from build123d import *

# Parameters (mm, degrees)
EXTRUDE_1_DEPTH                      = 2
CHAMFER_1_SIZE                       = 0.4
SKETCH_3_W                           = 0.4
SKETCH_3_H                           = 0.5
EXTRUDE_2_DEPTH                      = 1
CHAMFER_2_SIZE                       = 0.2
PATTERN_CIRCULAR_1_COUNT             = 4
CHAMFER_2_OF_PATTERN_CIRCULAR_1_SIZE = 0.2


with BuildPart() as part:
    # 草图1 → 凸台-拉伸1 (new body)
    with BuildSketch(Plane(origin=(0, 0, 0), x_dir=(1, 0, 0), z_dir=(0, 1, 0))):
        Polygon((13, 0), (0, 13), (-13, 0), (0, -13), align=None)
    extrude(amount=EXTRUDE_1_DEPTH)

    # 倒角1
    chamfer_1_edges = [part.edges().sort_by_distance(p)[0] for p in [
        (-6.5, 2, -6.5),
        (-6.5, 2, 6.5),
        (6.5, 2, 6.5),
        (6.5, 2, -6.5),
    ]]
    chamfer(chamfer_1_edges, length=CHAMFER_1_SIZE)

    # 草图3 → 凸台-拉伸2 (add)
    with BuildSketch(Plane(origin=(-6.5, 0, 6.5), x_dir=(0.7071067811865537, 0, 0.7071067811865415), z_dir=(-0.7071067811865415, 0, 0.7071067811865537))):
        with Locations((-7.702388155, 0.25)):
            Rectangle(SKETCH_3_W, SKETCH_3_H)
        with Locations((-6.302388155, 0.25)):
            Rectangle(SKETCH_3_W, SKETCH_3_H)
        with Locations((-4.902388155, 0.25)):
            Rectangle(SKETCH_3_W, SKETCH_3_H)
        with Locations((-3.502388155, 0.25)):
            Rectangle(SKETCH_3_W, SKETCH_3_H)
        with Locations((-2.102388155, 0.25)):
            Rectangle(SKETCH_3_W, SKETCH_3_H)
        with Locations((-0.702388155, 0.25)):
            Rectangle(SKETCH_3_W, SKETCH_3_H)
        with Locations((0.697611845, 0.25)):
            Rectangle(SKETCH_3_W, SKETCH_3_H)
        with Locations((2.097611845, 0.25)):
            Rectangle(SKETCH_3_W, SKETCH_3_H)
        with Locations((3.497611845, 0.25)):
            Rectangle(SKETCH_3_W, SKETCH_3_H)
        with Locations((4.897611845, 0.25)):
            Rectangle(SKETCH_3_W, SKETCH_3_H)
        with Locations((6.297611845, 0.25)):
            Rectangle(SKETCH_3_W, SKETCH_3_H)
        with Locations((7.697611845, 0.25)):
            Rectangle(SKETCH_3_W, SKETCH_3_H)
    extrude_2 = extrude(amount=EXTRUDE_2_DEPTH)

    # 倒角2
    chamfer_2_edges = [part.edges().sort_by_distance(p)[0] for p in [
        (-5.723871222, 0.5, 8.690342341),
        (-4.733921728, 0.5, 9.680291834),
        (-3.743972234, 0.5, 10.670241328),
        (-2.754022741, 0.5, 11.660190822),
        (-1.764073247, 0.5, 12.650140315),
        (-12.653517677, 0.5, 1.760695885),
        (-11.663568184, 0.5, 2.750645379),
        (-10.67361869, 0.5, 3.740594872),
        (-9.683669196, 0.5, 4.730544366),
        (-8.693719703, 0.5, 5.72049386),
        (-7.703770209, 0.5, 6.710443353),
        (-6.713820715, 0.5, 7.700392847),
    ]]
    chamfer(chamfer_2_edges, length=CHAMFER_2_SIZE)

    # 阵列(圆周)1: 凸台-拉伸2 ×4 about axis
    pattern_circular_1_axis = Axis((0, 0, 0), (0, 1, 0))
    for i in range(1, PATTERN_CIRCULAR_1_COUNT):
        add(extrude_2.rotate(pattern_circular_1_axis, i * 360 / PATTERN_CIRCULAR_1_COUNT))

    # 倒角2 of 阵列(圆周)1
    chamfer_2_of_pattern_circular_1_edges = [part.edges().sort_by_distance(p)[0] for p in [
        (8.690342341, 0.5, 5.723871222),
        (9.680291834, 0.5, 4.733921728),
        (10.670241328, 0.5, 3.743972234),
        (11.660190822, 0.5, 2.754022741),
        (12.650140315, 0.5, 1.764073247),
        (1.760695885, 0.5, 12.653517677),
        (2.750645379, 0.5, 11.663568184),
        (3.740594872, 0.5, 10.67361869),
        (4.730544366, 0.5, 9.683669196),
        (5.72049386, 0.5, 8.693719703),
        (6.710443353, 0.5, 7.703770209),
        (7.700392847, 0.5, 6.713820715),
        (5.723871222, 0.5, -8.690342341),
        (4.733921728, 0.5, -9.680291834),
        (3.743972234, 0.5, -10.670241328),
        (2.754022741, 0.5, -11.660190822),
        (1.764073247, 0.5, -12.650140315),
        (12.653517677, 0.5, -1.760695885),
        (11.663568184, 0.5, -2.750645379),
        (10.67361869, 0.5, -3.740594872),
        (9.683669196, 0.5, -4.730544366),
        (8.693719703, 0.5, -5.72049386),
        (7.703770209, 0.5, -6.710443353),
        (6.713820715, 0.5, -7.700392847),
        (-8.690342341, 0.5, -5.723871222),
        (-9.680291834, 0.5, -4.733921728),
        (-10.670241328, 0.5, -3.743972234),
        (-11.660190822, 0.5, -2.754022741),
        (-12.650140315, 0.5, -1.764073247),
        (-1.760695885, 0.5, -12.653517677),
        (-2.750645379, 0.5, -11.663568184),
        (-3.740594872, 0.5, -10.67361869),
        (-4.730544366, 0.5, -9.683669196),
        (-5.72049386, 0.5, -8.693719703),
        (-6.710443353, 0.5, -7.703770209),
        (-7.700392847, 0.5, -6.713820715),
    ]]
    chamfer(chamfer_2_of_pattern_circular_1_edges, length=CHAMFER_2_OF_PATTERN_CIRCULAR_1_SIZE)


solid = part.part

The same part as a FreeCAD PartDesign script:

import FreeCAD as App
import Part
import Sketcher
Q = App.Units.Quantity


def edges_at(feature, points):
    """Names of the edges that pass closest to the given points."""
    edges = feature.Shape.Edges
    near = lambda p: min(range(len(edges)), key=lambda i: edges[i].distToShape(Part.Vertex(*p))[0])
    return sorted({f"Edge{near(p) + 1}" for p in points})

doc = App.newDocument("Part")
body = doc.addObject("PartDesign::Body", "Body")

sketch1 = body.newObject("Sketcher::SketchObject", "Sketch")
sketch1.AttachmentSupport = (doc.getObject("XZ_Plane"), [""])
sketch1.MapMode = "FlatFace"
sketch1.addGeometry([
    Part.LineSegment(App.Vector(13, 0, 0), App.Vector(0, -13, 0)),
    Part.LineSegment(App.Vector(0, -13, 0), App.Vector(-13, 0, 0)),
    Part.LineSegment(App.Vector(-13, 0, 0), App.Vector(0, 13, 0)),
    Part.LineSegment(App.Vector(0, 13, 0), App.Vector(13, 0, 0)),
], False)
sketch1.addConstraint([
    Sketcher.Constraint("Coincident", 0, 2, 1, 1),
    Sketcher.Constraint("Coincident", 1, 2, 2, 1),
    Sketcher.Constraint("Coincident", 2, 2, 3, 1),
    Sketcher.Constraint("Coincident", 3, 2, 0, 1),
    Sketcher.Constraint("Symmetric", 0, 2, 2, 2, -1, 1),
    Sketcher.Constraint("Symmetric", 1, 2, 3, 2, -1, 1),
    Sketcher.Constraint("PointOnObject", 0, 2, -2),
    Sketcher.Constraint("PointOnObject", 1, 2, -1),
    Sketcher.Constraint("Perpendicular", 0, 1),
    Sketcher.Constraint("DistanceY", 0, 2, -1, 1, Q("13 mm")),
])
pad1 = body.newObject("PartDesign::Pad", "Pad")
pad1.Profile = sketch1
pad1.Length = 2
pad1.Reversed = True
doc.recompute()

chamfer = body.newObject("PartDesign::Chamfer", "Chamfer")
chamfer.Base = (pad1, edges_at(pad1, [
    (-6.5, 2, -6.5),
    (-6.5, 2, 6.5),
    (6.5, 2, 6.5),
    (6.5, 2, -6.5),
]))
chamfer.Size = 0.4

sketch2 = body.newObject("Sketcher::SketchObject", "Sketch001")
sketch2.Placement = App.Placement(App.Vector(-6.5, 0, 6.5), App.Rotation(App.Vector(0.707106781, 0, 0.707106781), App.Vector(0, 0.999999999, 0), App.Vector(-0.707106781, 0, 0.707106781), "ZXY"))
sketch2.addGeometry([
    Part.LineSegment(App.Vector(-7.9, 0.5, 0), App.Vector(-7.9, 0, 0)),
    Part.LineSegment(App.Vector(-7.9, 0, 0), App.Vector(-7.5, 0, 0)),
    Part.LineSegment(App.Vector(-7.5, 0, 0), App.Vector(-7.5, 0.5, 0)),
    Part.LineSegment(App.Vector(-7.5, 0.5, 0), App.Vector(-7.9, 0.5, 0)),
    Part.LineSegment(App.Vector(-6.5, 0.5, 0), App.Vector(-6.5, 0, 0)),
    Part.LineSegment(App.Vector(-6.5, 0, 0), App.Vector(-6.1, 0, 0)),
    Part.LineSegment(App.Vector(-6.1, 0, 0), App.Vector(-6.1, 0.5, 0)),
    Part.LineSegment(App.Vector(-6.1, 0.5, 0), App.Vector(-6.5, 0.5, 0)),
    Part.LineSegment(App.Vector(-5.1, 0.5, 0), App.Vector(-5.1, 0, 0)),
    Part.LineSegment(App.Vector(-5.1, 0, 0), App.Vector(-4.7, 0, 0)),
    Part.LineSegment(App.Vector(-4.7, 0, 0), App.Vector(-4.7, 0.5, 0)),
    Part.LineSegment(App.Vector(-4.7, 0.5, 0), App.Vector(-5.1, 0.5, 0)),
    Part.LineSegment(App.Vector(-3.7, 0.5, 0), App.Vector(-3.7, 0, 0)),
    Part.LineSegment(App.Vector(-3.7, 0, 0), App.Vector(-3.3, 0, 0)),
    Part.LineSegment(App.Vector(-3.3, 0, 0), App.Vector(-3.3, 0.5, 0)),
    Part.LineSegment(App.Vector(-3.3, 0.5, 0), App.Vector(-3.7, 0.5, 0)),
    Part.LineSegment(App.Vector(-2.3, 0.5, 0), App.Vector(-2.3, 0, 0)),
    Part.LineSegment(App.Vector(-2.3, 0, 0), App.Vector(-1.9, 0, 0)),
    Part.LineSegment(App.Vector(-1.9, 0, 0), App.Vector(-1.9, 0.5, 0)),
    Part.LineSegment(App.Vector(-1.9, 0.5, 0), App.Vector(-2.3, 0.5, 0)),
    Part.LineSegment(App.Vector(-0.9, 0.5, 0), App.Vector(-0.9, 0, 0)),
    Part.LineSegment(App.Vector(-0.9, 0, 0), App.Vector(-0.5, 0, 0)),
    Part.LineSegment(App.Vector(-0.5, 0, 0), App.Vector(-0.5, 0.5, 0)),
    Part.LineSegment(App.Vector(-0.5, 0.5, 0), App.Vector(-0.9, 0.5, 0)),
    Part.LineSegment(App.Vector(0.5, 0.5, 0), App.Vector(0.5, 0, 0)),
    Part.LineSegment(App.Vector(0.5, 0, 0), App.Vector(0.9, 0, 0)),
    Part.LineSegment(App.Vector(0.9, 0, 0), App.Vector(0.9, 0.5, 0)),
    Part.LineSegment(App.Vector(0.9, 0.5, 0), App.Vector(0.5, 0.5, 0)),
    Part.LineSegment(App.Vector(1.9, 0.5, 0), App.Vector(1.9, 0, 0)),
    Part.LineSegment(App.Vector(1.9, 0, 0), App.Vector(2.3, 0, 0)),
    Part.LineSegment(App.Vector(2.3, 0, 0), App.Vector(2.3, 0.5, 0)),
    Part.LineSegment(App.Vector(2.3, 0.5, 0), App.Vector(1.9, 0.5, 0)),
    Part.LineSegment(App.Vector(3.3, 0.5, 0), App.Vector(3.3, 0, 0)),
    Part.LineSegment(App.Vector(3.3, 0, 0), App.Vector(3.7, 0, 0)),
    Part.LineSegment(App.Vector(3.7, 0, 0), App.Vector(3.7, 0.5, 0)),
    Part.LineSegment(App.Vector(3.7, 0.5, 0), App.Vector(3.3, 0.5, 0)),
    Part.LineSegment(App.Vector(4.7, 0.5, 0), App.Vector(4.7, 0, 0)),
    Part.LineSegment(App.Vector(4.7, 0, 0), App.Vector(5.1, 0, 0)),
    Part.LineSegment(App.Vector(5.1, 0, 0), App.Vector(5.1, 0.5, 0)),
    Part.LineSegment(App.Vector(5.1, 0.5, 0), App.Vector(4.7, 0.5, 0)),
    Part.LineSegment(App.Vector(6.1, 0.5, 0), App.Vector(6.1, 0, 0)),
    Part.LineSegment(App.Vector(6.1, 0, 0), App.Vector(6.5, 0, 0)),
    Part.LineSegment(App.Vector(6.5, 0, 0), App.Vector(6.5, 0.5, 0)),
    Part.LineSegment(App.Vector(6.5, 0.5, 0), App.Vector(6.1, 0.5, 0)),
    Part.LineSegment(App.Vector(7.5, 0.5, 0), App.Vector(7.5, 0, 0)),
    Part.LineSegment(App.Vector(7.5, 0, 0), App.Vector(7.9, 0, 0)),
    Part.LineSegment(App.Vector(7.9, 0, 0), App.Vector(7.9, 0.5, 0)),
    Part.LineSegment(App.Vector(7.9, 0.5, 0), App.Vector(7.5, 0.5, 0)),
], False)
sketch2.addConstraint([
    Sketcher.Constraint("Coincident", 0, 2, 1, 1),
    Sketcher.Constraint("Coincident", 1, 2, 2, 1),
    Sketcher.Constraint("Coincident", 2, 2, 3, 1),
    Sketcher.Constraint("Coincident", 3, 2, 0, 1),
    Sketcher.Constraint("Coincident", 4, 2, 5, 1),
    Sketcher.Constraint("Coincident", 5, 2, 6, 1),
    Sketcher.Constraint("Coincident", 6, 2, 7, 1),
    Sketcher.Constraint("Coincident", 7, 2, 4, 1),
    Sketcher.Constraint("Coincident", 8, 2, 9, 1),
    Sketcher.Constraint("Coincident", 9, 2, 10, 1),
    Sketcher.Constraint("Coincident", 10, 2, 11, 1),
    Sketcher.Constraint("Coincident", 11, 2, 8, 1),
    Sketcher.Constraint("Coincident", 12, 2, 13, 1),
    Sketcher.Constraint("Coincident", 13, 2, 14, 1),
    Sketcher.Constraint("Coincident", 14, 2, 15, 1),
    Sketcher.Constraint("Coincident", 15, 2, 12, 1),
    Sketcher.Constraint("Coincident", 16, 2, 17, 1),
    Sketcher.Constraint("Coincident", 17, 2, 18, 1),
    Sketcher.Constraint("Coincident", 18, 2, 19, 1),
    Sketcher.Constraint("Coincident", 19, 2, 16, 1),
    Sketcher.Constraint("Coincident", 20, 2, 21, 1),
    Sketcher.Constraint("Coincident", 21, 2, 22, 1),
    Sketcher.Constraint("Coincident", 22, 2, 23, 1),
    Sketcher.Constraint("Coincident", 23, 2, 20, 1),
    Sketcher.Constraint("Coincident", 24, 2, 25, 1),
    Sketcher.Constraint("Coincident", 25, 2, 26, 1),
    Sketcher.Constraint("Coincident", 26, 2, 27, 1),
    Sketcher.Constraint("Coincident", 27, 2, 24, 1),
    Sketcher.Constraint("Coincident", 28, 2, 29, 1),
    Sketcher.Constraint("Coincident", 29, 2, 30, 1),
    Sketcher.Constraint("Coincident", 30, 2, 31, 1),
    Sketcher.Constraint("Coincident", 31, 2, 28, 1),
    Sketcher.Constraint("Coincident", 32, 2, 33, 1),
    Sketcher.Constraint("Coincident", 33, 2, 34, 1),
    Sketcher.Constraint("Coincident", 34, 2, 35, 1),
    Sketcher.Constraint("Coincident", 35, 2, 32, 1),
    Sketcher.Constraint("Coincident", 36, 2, 37, 1),
    Sketcher.Constraint("Coincident", 37, 2, 38, 1),
    Sketcher.Constraint("Coincident", 38, 2, 39, 1),
    Sketcher.Constraint("Coincident", 39, 2, 36, 1),
    Sketcher.Constraint("Coincident", 40, 2, 41, 1),
    Sketcher.Constraint("Coincident", 41, 2, 42, 1),
    Sketcher.Constraint("Coincident", 42, 2, 43, 1),
    Sketcher.Constraint("Coincident", 43, 2, 40, 1),
    Sketcher.Constraint("Coincident", 44, 2, 45, 1),
    Sketcher.Constraint("Coincident", 45, 2, 46, 1),
    Sketcher.Constraint("Coincident", 46, 2, 47, 1),
    Sketcher.Constraint("Coincident", 47, 2, 44, 1),
    Sketcher.Constraint("Vertical", 0),
    Sketcher.Constraint("Horizontal", 1),
    Sketcher.Constraint("Vertical", 2),
    Sketcher.Constraint("Horizontal", 3),
    Sketcher.Constraint("Vertical", 4),
    Sketcher.Constraint("Horizontal", 5),
    Sketcher.Constraint("Vertical", 6),
    Sketcher.Constraint("Horizontal", 7),
    Sketcher.Constraint("Vertical", 8),
    Sketcher.Constraint("Horizontal", 9),
    Sketcher.Constraint("Vertical", 10),
    Sketcher.Constraint("Horizontal", 11),
    Sketcher.Constraint("Vertical", 12),
    Sketcher.Constraint("Horizontal", 13),
    Sketcher.Constraint("Vertical", 14),
    Sketcher.Constraint("Horizontal", 15),
    Sketcher.Constraint("Vertical", 16),
    Sketcher.Constraint("Horizontal", 17),
    Sketcher.Constraint("Vertical", 18),
    Sketcher.Constraint("Horizontal", 19),
    Sketcher.Constraint("Vertical", 20),
    Sketcher.Constraint("Horizontal", 21),
    Sketcher.Constraint("Vertical", 22),
    Sketcher.Constraint("Horizontal", 23),
    Sketcher.Constraint("Vertical", 24),
    Sketcher.Constraint("Horizontal", 25),
    Sketcher.Constraint("Vertical", 26),
    Sketcher.Constraint("Horizontal", 27),
    Sketcher.Constraint("Vertical", 28),
    Sketcher.Constraint("Horizontal", 29),
    Sketcher.Constraint("Vertical", 30),
    Sketcher.Constraint("Horizontal", 31),
    Sketcher.Constraint("Vertical", 32),
    Sketcher.Constraint("Horizontal", 33),
    Sketcher.Constraint("Vertical", 34),
    Sketcher.Constraint("Horizontal", 35),
    Sketcher.Constraint("Vertical", 36),
    Sketcher.Constraint("Horizontal", 37),
    Sketcher.Constraint("Vertical", 38),
    Sketcher.Constraint("Horizontal", 39),
    Sketcher.Constraint("Vertical", 40),
    Sketcher.Constraint("Horizontal", 41),
    Sketcher.Constraint("Vertical", 42),
    Sketcher.Constraint("Horizontal", 43),
    Sketcher.Constraint("Vertical", 44),
    Sketcher.Constraint("Horizontal", 45),
    Sketcher.Constraint("Vertical", 46),
    Sketcher.Constraint("Horizontal", 47),
    Sketcher.Constraint("PointOnObject", 0, 2, -1),
    Sketcher.Constraint("PointOnObject", 4, 2, -1),
    Sketcher.Constraint("PointOnObject", 8, 2, -1),
    Sketcher.Constraint("PointOnObject", 12, 2, -1),
    Sketcher.Constraint("PointOnObject", 16, 2, -1),
    Sketcher.Constraint("PointOnObject", 20, 2, -1),
    Sketcher.Constraint("PointOnObject", 24, 2, -1),
    Sketcher.Constraint("PointOnObject", 28, 2, -1),
    Sketcher.Constraint("PointOnObject", 32, 2, -1),
    Sketcher.Constraint("PointOnObject", 36, 2, -1),
    Sketcher.Constraint("PointOnObject", 40, 2, -1),
    Sketcher.Constraint("PointOnObject", 44, 2, -1),
    Sketcher.Constraint("Horizontal", 3, 2, 6, 2),
    Sketcher.Constraint("Horizontal", 7, 2, 10, 2),
    Sketcher.Constraint("Horizontal", 11, 2, 14, 2),
    Sketcher.Constraint("Horizontal", 15, 2, 18, 2),
    Sketcher.Constraint("Horizontal", 19, 2, 22, 2),
    Sketcher.Constraint("Horizontal", 23, 2, 26, 2),
    Sketcher.Constraint("Horizontal", 27, 2, 30, 2),
    Sketcher.Constraint("Horizontal", 31, 2, 34, 2),
    Sketcher.Constraint("Horizontal", 35, 2, 38, 2),
    Sketcher.Constraint("Horizontal", 39, 2, 42, 2),
    Sketcher.Constraint("Horizontal", 43, 2, 46, 2),
    Sketcher.Constraint("Equal", 3, 5),
    Sketcher.Constraint("Equal", 7, 9),
    Sketcher.Constraint("Equal", 11, 13),
    Sketcher.Constraint("Equal", 15, 17),
    Sketcher.Constraint("Equal", 19, 21),
    Sketcher.Constraint("Equal", 23, 25),
    Sketcher.Constraint("Equal", 27, 29),
    Sketcher.Constraint("Equal", 31, 33),
    Sketcher.Constraint("Equal", 35, 37),
    Sketcher.Constraint("Equal", 39, 41),
    Sketcher.Constraint("Equal", 43, 45),
    Sketcher.Constraint("DistanceX", 1, 1, 1, 2, Q("0.4 mm")),
    Sketcher.Constraint("DistanceY", 0, 2, 0, 1, Q("0.5 mm")),
    Sketcher.Constraint("DistanceX", 1, 2, 4, 2, Q("1 mm")),
    Sketcher.Constraint("DistanceX", 5, 2, 8, 2, Q("1 mm")),
    Sketcher.Constraint("DistanceX", 9, 2, 12, 2, Q("1 mm")),
    Sketcher.Constraint("DistanceX", 13, 2, 16, 2, Q("1 mm")),
    Sketcher.Constraint("DistanceX", 17, 2, 20, 2, Q("1 mm")),
    Sketcher.Constraint("DistanceX", 21, 2, 24, 2, Q("1 mm")),
    Sketcher.Constraint("DistanceX", 25, 2, 28, 2, Q("1 mm")),
    Sketcher.Constraint("DistanceX", 29, 2, 32, 2, Q("1 mm")),
    Sketcher.Constraint("DistanceX", 33, 2, 36, 2, Q("1 mm")),
    Sketcher.Constraint("DistanceX", 37, 2, 40, 2, Q("1 mm")),
    Sketcher.Constraint("DistanceX", 41, 2, 44, 2, Q("1 mm")),
    Sketcher.Constraint("DistanceX", 0, 2, -1, 1, Q("7.902388 mm")),
])
pad2 = body.newObject("PartDesign::Pad", "Pad001")
pad2.Profile = sketch2
pad2.Length = 1
doc.recompute()

chamfer2 = body.newObject("PartDesign::Chamfer", "Chamfer001")
chamfer2.Base = (pad2, edges_at(pad2, [
    (-5.724, 0.5, 8.69),
    (-4.734, 0.5, 9.68),
    (-3.744, 0.5, 10.67),
    (-2.754, 0.5, 11.66),
    (-1.764, 0.5, 12.65),
    (-12.654, 0.5, 1.761),
    (-11.664, 0.5, 2.751),
    (-10.674, 0.5, 3.741),
    (-9.684, 0.5, 4.731),
    (-8.694, 0.5, 5.72),
    (-7.704, 0.5, 6.71),
    (-6.714, 0.5, 7.7),
]))
chamfer2.Size = 0.2
doc.recompute()

polarpattern = body.newObject("PartDesign::PolarPattern", "PolarPattern")
polarpattern.Originals = [pad2]
polarpattern.Axis = (doc.getObject("Y_Axis"), [""])
polarpattern.Angle = 360
polarpattern.Occurrences = 4
body.Tip = polarpattern
doc.recompute()

chamfer3 = body.newObject("PartDesign::Chamfer", "Chamfer002")
chamfer3.Base = (polarpattern, edges_at(polarpattern, [
    (8.69, 0.5, 5.724),
    (9.68, 0.5, 4.734),
    (10.67, 0.5, 3.744),
    (11.66, 0.5, 2.754),
    (12.65, 0.5, 1.764),
    (1.761, 0.5, 12.654),
    (2.751, 0.5, 11.664),
    (3.741, 0.5, 10.674),
    (4.731, 0.5, 9.684),
    (5.72, 0.5, 8.694),
    (6.71, 0.5, 7.704),
    (7.7, 0.5, 6.714),
    (5.724, 0.5, -8.69),
    (4.734, 0.5, -9.68),
    (3.744, 0.5, -10.67),
    (2.754, 0.5, -11.66),
    (1.764, 0.5, -12.65),
    (12.654, 0.5, -1.761),
    (11.664, 0.5, -2.751),
    (10.674, 0.5, -3.741),
    (9.684, 0.5, -4.731),
    (8.694, 0.5, -5.72),
    (7.704, 0.5, -6.71),
    (6.714, 0.5, -7.7),
    (-8.69, 0.5, -5.724),
    (-9.68, 0.5, -4.734),
    (-10.67, 0.5, -3.744),
    (-11.66, 0.5, -2.754),
    (-12.65, 0.5, -1.764),
    (-1.761, 0.5, -12.654),
    (-2.751, 0.5, -11.664),
    (-3.741, 0.5, -10.674),
    (-4.731, 0.5, -9.684),
    (-5.72, 0.5, -8.694),
    (-6.71, 0.5, -7.704),
    (-7.7, 0.5, -6.714),
]))
chamfer3.Size = 0.2

doc.recompute()
